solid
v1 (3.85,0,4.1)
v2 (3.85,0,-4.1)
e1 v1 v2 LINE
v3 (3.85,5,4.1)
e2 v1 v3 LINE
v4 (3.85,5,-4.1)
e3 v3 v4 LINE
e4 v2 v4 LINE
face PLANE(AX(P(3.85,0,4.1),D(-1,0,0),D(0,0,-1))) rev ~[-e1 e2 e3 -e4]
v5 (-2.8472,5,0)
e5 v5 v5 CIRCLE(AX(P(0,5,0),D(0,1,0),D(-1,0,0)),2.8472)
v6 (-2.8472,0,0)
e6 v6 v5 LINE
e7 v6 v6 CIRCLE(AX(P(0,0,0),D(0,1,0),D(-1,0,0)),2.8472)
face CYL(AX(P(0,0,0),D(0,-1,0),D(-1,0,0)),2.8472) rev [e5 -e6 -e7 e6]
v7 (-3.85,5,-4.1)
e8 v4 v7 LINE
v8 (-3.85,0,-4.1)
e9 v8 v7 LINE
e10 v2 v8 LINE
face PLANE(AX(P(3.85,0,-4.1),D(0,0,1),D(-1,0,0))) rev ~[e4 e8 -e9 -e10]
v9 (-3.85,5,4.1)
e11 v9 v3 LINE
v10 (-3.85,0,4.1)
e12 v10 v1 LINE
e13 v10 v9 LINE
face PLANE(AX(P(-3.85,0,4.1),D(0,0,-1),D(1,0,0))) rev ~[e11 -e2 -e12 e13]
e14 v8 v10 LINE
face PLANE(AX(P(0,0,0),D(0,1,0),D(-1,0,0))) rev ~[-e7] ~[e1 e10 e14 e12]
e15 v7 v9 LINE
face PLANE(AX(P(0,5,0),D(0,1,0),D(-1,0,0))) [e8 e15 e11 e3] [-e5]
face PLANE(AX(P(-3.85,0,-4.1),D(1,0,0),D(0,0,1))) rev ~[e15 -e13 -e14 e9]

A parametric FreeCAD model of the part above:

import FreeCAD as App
import Part
import Sketcher
from FreeCAD import Vector

doc = App.newDocument("Part")
body = doc.addObject("PartDesign::Body", "Body")

# Sketch on XZ plane
sketch1 = body.newObject("Sketcher::SketchObject", "Sketch")
sketch1.AttachmentSupport = (doc.getObject("XZ_Plane"), [""])
sketch1.MapMode = "FlatFace"
sketch1.addGeometry([
    Part.LineSegment(Vector(-3.9, -4.1, 0), Vector(-3.9, 4.1, 0)),  # 0
    Part.LineSegment(Vector(-3.9, 4.1, 0), Vector(3.9, 4.1, 0)),  # 1
    Part.LineSegment(Vector(3.9, 4.1, 0), Vector(3.9, -4.1, 0)),  # 2
    Part.LineSegment(Vector(3.9, -4.1, 0), Vector(-3.9, -4.1, 0)),  # 3
    Part.Circle(Vector(0, 0, 0), Vector(0, 0, 1), 2.8),  # 4
], False)
sketch1.addConstraint([
    Sketcher.Constraint("Coincident", 0, 2, 1, 1),
    Sketcher.Constraint("Coincident", 1, 2, 2, 1),
    Sketcher.Constraint("Coincident", 2, 2, 3, 1),
    Sketcher.Constraint("Coincident", 3, 2, 0, 1),
    Sketcher.Constraint("Vertical", 0),
    Sketcher.Constraint("Horizontal", 1),
    Sketcher.Constraint("Vertical", 2),
    Sketcher.Constraint("Horizontal", 3),
    Sketcher.Constraint("Coincident", 4, 3, -1, 1),
    Sketcher.Constraint("Symmetric", 0, 2, 2, 2, -1, 1),
    Sketcher.Constraint("DistanceX", 1, 1, 1, 2, 7.7),
    Sketcher.Constraint("DistanceY", 0, 1, 0, 2, 8.2),
    Sketcher.Constraint("Diameter", 4, 5.6944),
])
pad1 = body.newObject("PartDesign::Pad", "Pad")
pad1.Profile = sketch1
pad1.Length = 5
pad1.Reversed = True

doc.recompute()
